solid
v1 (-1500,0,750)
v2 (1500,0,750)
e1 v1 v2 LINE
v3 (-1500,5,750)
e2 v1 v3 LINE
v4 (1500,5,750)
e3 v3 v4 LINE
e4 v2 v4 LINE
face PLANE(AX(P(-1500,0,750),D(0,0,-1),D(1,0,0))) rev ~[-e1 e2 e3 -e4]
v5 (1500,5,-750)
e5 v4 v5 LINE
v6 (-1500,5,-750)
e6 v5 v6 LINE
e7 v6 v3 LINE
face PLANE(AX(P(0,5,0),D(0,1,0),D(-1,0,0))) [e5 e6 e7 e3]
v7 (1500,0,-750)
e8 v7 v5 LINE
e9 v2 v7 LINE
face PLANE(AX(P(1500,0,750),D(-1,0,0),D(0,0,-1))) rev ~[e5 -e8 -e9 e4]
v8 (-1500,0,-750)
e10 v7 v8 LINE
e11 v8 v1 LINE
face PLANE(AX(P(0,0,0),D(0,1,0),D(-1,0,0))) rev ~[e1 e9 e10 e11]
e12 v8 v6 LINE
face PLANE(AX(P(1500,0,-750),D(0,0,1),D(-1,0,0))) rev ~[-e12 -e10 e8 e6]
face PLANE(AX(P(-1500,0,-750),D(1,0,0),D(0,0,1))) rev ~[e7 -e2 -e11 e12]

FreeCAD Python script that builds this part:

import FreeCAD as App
import Part
import Sketcher

V = App.Vector


def add_polygon(sketch, points):
    """Adds a closed chain of lines whose ends are joined by coincident constraints."""
    first, n = sketch.GeometryCount, len(points)
    for a, b in zip(points, points[1:] + points[:1]):
        sketch.addGeometry(Part.LineSegment(App.Vector(*a, 0), App.Vector(*b, 0)), False)
    for i in range(n):
        sketch.addConstraint(Sketcher.Constraint("Coincident", first + i, 2, first + (i + 1) % n, 1))

doc = App.newDocument("Part")
params = doc.addObject("Spreadsheet::Sheet", "Params")
for row, (alias, value) in enumerate([
    ("sketch1_width", "3000 mm"),
    ("sketch1_height", "1500 mm"),
    ("pad1_length", "5 mm"),
], start=1):
    params.set(f"A{row}", alias)
    params.set(f"B{row}", "=" + value)
    params.setAlias(f"B{row}", alias)

body = doc.addObject("PartDesign::Body", "Body")

sketch1 = doc.addObject("Sketcher::SketchObject", "Sketch")
body.addObject(sketch1)
sketch1.AttachmentSupport = (doc.XZ_Plane, [""])
sketch1.MapMode = "FlatFace"
add_polygon(sketch1, [(-1500, -750), (-1500, 750), (1500, 750), (1500, -750)])
sketch1.addConstraint([
    Sketcher.Constraint("Vertical", 0),
    Sketcher.Constraint("Horizontal", 1),
    Sketcher.Constraint("Vertical", 2),
    Sketcher.Constraint("Horizontal", 3),
    Sketcher.Constraint("Symmetric", 0, 2, 2, 2, -1, 1),
    Sketcher.Constraint("DistanceX", 1, 1, 1, 2, 3000.0),
    Sketcher.Constraint("DistanceY", 0, 1, 0, 2, 1500.0),
])
sketch1.setExpression("Constraints[9]", "Params.sketch1_width")
sketch1.setExpression("Constraints[10]", "Params.sketch1_height")
pad1 = doc.addObject("PartDesign::Pad", "Pad")
body.addObject(pad1)
pad1.Profile = sketch1
pad1.setExpression("Length", "Params.pad1_length")
pad1.Reversed = True

doc.recompute()
